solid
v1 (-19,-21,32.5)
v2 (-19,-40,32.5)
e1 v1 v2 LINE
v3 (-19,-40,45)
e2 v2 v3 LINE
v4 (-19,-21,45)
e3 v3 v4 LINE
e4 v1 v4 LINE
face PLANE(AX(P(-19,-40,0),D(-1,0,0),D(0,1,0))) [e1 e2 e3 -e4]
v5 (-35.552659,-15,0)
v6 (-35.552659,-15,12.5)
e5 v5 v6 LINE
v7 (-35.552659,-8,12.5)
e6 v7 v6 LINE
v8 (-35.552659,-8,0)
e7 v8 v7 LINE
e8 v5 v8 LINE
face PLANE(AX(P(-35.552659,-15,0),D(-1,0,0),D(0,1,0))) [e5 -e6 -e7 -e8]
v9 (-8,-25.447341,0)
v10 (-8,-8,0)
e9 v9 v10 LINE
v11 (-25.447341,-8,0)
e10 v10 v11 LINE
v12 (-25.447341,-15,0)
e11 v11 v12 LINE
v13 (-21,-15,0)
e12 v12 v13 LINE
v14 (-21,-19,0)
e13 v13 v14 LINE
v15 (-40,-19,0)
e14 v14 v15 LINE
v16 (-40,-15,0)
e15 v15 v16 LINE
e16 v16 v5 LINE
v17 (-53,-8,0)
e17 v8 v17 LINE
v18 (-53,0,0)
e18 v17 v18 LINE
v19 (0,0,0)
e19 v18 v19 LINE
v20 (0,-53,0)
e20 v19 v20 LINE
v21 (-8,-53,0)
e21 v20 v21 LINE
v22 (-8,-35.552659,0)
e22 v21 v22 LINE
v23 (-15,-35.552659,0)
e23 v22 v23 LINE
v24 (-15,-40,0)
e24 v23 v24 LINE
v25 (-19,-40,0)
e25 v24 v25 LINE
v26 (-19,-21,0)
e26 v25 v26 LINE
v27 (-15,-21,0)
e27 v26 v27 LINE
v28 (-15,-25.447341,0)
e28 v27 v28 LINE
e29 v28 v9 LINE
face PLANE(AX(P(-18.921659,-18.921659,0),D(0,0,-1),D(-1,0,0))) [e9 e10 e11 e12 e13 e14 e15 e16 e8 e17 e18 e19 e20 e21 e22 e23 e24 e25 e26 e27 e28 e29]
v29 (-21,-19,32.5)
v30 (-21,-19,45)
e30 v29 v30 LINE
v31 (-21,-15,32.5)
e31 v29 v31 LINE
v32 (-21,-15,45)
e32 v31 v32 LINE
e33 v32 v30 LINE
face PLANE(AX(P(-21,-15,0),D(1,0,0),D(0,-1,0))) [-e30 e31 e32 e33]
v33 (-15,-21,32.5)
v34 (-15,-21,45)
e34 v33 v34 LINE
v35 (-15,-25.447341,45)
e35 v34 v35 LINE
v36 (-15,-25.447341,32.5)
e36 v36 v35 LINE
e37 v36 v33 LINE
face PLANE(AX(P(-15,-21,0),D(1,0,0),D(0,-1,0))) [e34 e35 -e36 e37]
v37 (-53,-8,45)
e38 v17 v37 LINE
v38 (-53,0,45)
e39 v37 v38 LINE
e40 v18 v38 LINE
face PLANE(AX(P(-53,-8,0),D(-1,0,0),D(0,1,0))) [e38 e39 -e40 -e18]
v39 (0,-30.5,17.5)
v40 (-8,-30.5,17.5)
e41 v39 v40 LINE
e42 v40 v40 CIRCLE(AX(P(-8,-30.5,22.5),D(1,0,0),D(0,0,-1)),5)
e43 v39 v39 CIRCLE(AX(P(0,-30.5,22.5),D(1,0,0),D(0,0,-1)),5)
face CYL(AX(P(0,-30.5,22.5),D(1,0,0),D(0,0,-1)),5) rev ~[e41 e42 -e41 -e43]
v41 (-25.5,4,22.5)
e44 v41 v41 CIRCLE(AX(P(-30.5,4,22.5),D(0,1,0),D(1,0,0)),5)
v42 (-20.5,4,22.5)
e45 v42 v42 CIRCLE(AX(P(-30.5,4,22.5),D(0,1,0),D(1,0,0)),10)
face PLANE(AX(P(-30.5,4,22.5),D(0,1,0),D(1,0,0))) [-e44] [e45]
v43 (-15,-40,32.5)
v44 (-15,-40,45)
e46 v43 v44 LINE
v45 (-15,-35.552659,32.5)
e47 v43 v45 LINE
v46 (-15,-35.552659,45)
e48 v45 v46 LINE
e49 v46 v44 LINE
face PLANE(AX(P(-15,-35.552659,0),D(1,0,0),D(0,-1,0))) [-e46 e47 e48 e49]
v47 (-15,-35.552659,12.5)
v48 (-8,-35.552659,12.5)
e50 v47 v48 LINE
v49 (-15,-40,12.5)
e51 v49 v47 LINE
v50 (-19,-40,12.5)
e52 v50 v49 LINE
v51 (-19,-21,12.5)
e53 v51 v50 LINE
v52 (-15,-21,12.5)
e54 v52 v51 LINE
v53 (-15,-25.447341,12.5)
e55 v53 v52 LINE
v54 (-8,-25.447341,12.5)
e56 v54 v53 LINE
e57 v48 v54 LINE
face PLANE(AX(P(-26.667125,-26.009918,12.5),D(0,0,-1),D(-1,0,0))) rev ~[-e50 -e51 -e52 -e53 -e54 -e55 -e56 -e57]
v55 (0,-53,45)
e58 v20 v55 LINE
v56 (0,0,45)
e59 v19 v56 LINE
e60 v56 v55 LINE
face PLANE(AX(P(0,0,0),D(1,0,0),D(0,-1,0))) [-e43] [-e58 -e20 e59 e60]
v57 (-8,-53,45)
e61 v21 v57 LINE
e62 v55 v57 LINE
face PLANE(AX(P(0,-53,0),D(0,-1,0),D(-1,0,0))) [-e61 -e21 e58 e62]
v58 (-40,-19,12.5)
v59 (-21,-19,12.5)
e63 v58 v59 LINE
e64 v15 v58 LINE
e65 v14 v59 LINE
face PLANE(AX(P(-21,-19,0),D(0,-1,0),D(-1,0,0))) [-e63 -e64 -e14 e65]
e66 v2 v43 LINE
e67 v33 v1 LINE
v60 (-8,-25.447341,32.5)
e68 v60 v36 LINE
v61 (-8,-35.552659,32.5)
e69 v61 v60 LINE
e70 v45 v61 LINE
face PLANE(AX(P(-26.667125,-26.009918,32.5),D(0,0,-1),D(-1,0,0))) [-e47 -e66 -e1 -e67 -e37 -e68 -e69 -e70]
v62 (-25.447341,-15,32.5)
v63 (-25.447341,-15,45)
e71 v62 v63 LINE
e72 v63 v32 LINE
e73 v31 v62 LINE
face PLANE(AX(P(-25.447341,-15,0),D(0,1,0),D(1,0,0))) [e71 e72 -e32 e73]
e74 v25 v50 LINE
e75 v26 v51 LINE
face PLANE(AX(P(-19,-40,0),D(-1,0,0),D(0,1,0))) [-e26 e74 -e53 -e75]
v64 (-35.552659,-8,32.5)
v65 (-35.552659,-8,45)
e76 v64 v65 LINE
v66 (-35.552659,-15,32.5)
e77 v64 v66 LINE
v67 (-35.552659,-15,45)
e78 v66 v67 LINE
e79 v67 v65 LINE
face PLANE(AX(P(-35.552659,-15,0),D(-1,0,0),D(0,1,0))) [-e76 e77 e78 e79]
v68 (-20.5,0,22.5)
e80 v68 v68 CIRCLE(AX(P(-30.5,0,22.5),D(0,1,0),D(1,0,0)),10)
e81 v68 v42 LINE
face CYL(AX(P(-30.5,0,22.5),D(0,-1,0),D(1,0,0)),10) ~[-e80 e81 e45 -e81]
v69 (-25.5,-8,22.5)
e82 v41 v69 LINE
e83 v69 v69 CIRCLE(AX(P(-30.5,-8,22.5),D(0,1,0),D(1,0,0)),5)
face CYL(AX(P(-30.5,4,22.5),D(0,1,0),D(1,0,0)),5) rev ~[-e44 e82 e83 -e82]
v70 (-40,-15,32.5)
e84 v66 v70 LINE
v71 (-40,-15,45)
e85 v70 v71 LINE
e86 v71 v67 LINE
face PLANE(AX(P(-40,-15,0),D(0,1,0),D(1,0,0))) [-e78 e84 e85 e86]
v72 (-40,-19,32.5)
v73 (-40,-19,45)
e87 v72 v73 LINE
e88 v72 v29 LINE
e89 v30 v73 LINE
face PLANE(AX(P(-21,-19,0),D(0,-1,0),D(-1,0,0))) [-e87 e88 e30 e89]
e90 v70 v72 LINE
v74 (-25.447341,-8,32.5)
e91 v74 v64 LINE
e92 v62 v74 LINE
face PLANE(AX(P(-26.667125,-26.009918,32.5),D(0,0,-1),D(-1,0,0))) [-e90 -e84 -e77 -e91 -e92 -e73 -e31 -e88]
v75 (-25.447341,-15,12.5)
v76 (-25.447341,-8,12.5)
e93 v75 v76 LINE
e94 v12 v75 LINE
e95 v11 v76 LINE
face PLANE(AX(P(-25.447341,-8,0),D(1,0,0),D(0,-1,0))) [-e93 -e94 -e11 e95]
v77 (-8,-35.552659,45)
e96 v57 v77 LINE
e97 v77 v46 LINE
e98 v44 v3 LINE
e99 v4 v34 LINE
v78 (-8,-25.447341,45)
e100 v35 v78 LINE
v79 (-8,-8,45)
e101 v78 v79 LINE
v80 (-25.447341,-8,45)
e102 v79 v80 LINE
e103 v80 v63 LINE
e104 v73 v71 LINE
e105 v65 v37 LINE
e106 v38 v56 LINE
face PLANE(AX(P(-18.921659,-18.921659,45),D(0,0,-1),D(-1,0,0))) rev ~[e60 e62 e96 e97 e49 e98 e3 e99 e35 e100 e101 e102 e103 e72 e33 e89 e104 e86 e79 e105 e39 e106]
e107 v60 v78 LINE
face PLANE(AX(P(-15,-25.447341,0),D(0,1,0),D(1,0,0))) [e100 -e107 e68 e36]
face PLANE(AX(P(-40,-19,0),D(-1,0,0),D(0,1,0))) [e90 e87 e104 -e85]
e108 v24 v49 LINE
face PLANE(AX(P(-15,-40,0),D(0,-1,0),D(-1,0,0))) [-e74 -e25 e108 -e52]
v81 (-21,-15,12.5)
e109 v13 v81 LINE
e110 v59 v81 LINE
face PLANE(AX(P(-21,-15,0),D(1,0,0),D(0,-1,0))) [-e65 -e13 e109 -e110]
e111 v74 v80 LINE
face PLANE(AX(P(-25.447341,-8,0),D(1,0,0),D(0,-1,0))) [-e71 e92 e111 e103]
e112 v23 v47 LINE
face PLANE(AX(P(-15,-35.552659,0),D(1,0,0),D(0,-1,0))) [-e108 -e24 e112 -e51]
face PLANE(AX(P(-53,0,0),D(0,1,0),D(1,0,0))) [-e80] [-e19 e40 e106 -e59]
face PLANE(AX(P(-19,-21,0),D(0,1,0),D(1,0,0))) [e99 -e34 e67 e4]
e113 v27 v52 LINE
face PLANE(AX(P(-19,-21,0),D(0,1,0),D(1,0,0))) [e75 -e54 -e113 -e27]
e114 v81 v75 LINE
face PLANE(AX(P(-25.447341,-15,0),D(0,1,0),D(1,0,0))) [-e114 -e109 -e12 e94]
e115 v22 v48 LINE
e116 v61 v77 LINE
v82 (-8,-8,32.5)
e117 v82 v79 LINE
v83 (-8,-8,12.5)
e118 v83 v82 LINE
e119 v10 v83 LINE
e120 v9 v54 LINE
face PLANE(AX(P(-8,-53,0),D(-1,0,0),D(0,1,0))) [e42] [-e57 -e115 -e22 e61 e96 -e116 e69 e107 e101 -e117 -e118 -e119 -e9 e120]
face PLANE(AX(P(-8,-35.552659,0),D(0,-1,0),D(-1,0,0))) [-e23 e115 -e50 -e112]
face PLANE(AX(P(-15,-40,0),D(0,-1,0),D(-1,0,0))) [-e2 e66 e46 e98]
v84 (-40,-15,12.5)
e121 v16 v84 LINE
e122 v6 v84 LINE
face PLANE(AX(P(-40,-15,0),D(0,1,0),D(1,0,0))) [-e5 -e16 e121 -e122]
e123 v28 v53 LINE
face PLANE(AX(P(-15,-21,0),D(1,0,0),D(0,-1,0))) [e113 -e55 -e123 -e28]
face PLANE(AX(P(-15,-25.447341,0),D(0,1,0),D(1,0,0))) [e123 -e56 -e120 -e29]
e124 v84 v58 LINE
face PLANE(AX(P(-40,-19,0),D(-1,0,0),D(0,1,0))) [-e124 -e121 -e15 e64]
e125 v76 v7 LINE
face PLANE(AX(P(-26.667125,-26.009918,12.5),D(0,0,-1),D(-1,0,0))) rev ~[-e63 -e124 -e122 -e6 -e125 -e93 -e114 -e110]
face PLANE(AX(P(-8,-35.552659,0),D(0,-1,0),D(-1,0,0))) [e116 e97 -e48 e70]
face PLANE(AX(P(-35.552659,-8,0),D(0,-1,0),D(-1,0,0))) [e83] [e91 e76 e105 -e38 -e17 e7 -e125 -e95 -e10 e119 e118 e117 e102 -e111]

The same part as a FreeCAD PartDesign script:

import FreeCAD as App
import Part
import Sketcher

V = App.Vector
Q = App.Units.Quantity

doc = App.newDocument("Part")
body = doc.addObject("PartDesign::Body", "Body")

sketch1 = doc.addObject("Sketcher::SketchObject", "Sketch")
body.addObject(sketch1)
sketch1.AttachmentSupport = (doc.XY_Plane, [""])
sketch1.MapMode = "FlatFace"
sketch1.addGeometry([
    Part.LineSegment(V(0, 0, 0), V(-53, 0, 0)),
    Part.LineSegment(V(-53, 0, 0), V(-53, -8, 0)),
    Part.LineSegment(V(-53, -8, 0), V(-35.6, -8, 0)),
    Part.LineSegment(V(-35.6, -8, 0), V(-35.6, -15, 0)),
    Part.LineSegment(V(-35.6, -15, 0), V(-40, -15, 0)),
    Part.LineSegment(V(-40, -15, 0), V(-40, -19, 0)),
    Part.LineSegment(V(-40, -19, 0), V(-21, -19, 0)),
    Part.LineSegment(V(-21, -19, 0), V(-21, -15, 0)),
    Part.LineSegment(V(-21, -15, 0), V(-25.4, -15, 0)),
    Part.LineSegment(V(-25.4, -15, 0), V(-25.4, -8, 0)),
    Part.LineSegment(V(-25.4, -8, 0), V(-8, -8, 0)),
    Part.LineSegment(V(-8, -8, 0), V(-8, -25.4, 0)),
    Part.LineSegment(V(-8, -25.4, 0), V(-15, -25.4, 0)),
    Part.LineSegment(V(-15, -25.4, 0), V(-15, -21, 0)),
    Part.LineSegment(V(-15, -21, 0), V(-19, -21, 0)),
    Part.LineSegment(V(-19, -21, 0), V(-19, -40, 0)),
    Part.LineSegment(V(-19, -40, 0), V(-15, -40, 0)),
    Part.LineSegment(V(-15, -40, 0), V(-15, -35.6, 0)),
    Part.LineSegment(V(-15, -35.6, 0), V(-8, -35.6, 0)),
    Part.LineSegment(V(-8, -35.6, 0), V(-8, -53, 0)),
    Part.LineSegment(V(-8, -53, 0), V(0, -53, 0)),
    Part.LineSegment(V(0, -53, 0), V(0, 0, 0)),
], False)
sketch1.addConstraint([
    Sketcher.Constraint("Coincident", 0, 2, 1, 1),
    Sketcher.Constraint("Coincident", 1, 2, 2, 1),
    Sketcher.Constraint("Coincident", 2, 2, 3, 1),
    Sketcher.Constraint("Coincident", 3, 2, 4, 1),
    Sketcher.Constraint("Coincident", 4, 2, 5, 1),
    Sketcher.Constraint("Coincident", 5, 2, 6, 1),
    Sketcher.Constraint("Coincident", 6, 2, 7, 1),
    Sketcher.Constraint("Coincident", 7, 2, 8, 1),
    Sketcher.Constraint("Coincident", 8, 2, 9, 1),
    Sketcher.Constraint("Coincident", 9, 2, 10, 1),
    Sketcher.Constraint("Coincident", 10, 2, 11, 1),
    Sketcher.Constraint("Coincident", 11, 2, 12, 1),
    Sketcher.Constraint("Coincident", 12, 2, 13, 1),
    Sketcher.Constraint("Coincident", 13, 2, 14, 1),
    Sketcher.Constraint("Coincident", 14, 2, 15, 1),
    Sketcher.Constraint("Coincident", 15, 2, 16, 1),
    Sketcher.Constraint("Coincident", 16, 2, 17, 1),
    Sketcher.Constraint("Coincident", 17, 2, 18, 1),
    Sketcher.Constraint("Coincident", 18, 2, 19, 1),
    Sketcher.Constraint("Coincident", 19, 2, 20, 1),
    Sketcher.Constraint("Coincident", 20, 2, 21, 1),
    Sketcher.Constraint("Coincident", 21, 2, 0, 1),
    Sketcher.Constraint("Horizontal", 0),
    Sketcher.Constraint("Vertical", 1),
    Sketcher.Constraint("Horizontal", 2),
    Sketcher.Constraint("Vertical", 3),
    Sketcher.Constraint("Horizontal", 4),
    Sketcher.Constraint("Vertical", 5),
    Sketcher.Constraint("Horizontal", 6),
    Sketcher.Constraint("Vertical", 7),
    Sketcher.Constraint("Horizontal", 8),
    Sketcher.Constraint("Vertical", 9),
    Sketcher.Constraint("Horizontal", 10),
    Sketcher.Constraint("Vertical", 11),
    Sketcher.Constraint("Horizontal", 12),
    Sketcher.Constraint("Vertical", 13),
    Sketcher.Constraint("Horizontal", 14),
    Sketcher.Constraint("Vertical", 15),
    Sketcher.Constraint("Horizontal", 16),
    Sketcher.Constraint("Vertical", 17),
    Sketcher.Constraint("Horizontal", 18),
    Sketcher.Constraint("Vertical", 19),
    Sketcher.Constraint("Horizontal", 20),
    Sketcher.Constraint("Vertical", 21),
    Sketcher.Constraint("Coincident", 21, 2, -1, 1),
    Sketcher.Constraint("Horizontal", 4, 2, 7, 2),
    Sketcher.Constraint("Horizontal", 2, 2, 9, 2),
    Sketcher.Constraint("Vertical", 13, 2, 16, 2),
    Sketcher.Constraint("Vertical", 11, 2, 18, 2),
    Sketcher.Constraint("Equal", 4, 8),
    Sketcher.Constraint("Equal", 2, 10),
    Sketcher.Constraint("Equal", 20, 1),
    Sketcher.Constraint("Equal", 18, 3),
    Sketcher.Constraint("Equal", 16, 5),
    Sketcher.Constraint("Equal", 10, 11),
    Sketcher.Constraint("Equal", 8, 13),
    Sketcher.Constraint("Equal", 6, 15),
    Sketcher.Constraint("Equal", 13, 17),
    Sketcher.Constraint("Equal", 11, 19),
    Sketcher.Constraint("DistanceX", 0, 2, 0, 1, Q("53 mm")),
    Sketcher.Constraint("DistanceX", 6, 1, 6, 2, Q("19 mm")),
    Sketcher.Constraint("DistanceX", 12, 2, 12, 1, Q("7 mm")),
    Sketcher.Constraint("DistanceX", 14, 2, 14, 1, Q("4 mm")),
    Sketcher.Constraint("DistanceX", 20, 1, 20, 2, Q("8 mm")),
    Sketcher.Constraint("DistanceX", 2, 1, 2, 2, Q("17.447341 mm")),
])
pad1 = doc.addObject("PartDesign::Pad", "Pad")
body.addObject(pad1)
pad1.Profile = sketch1
pad1.Length = 45

sketch2 = doc.addObject("Sketcher::SketchObject", "Sketch001")
body.addObject(sketch2)
sketch2.AttachmentSupport = (doc.YZ_Plane, [""])
sketch2.MapMode = "FlatFace"
sketch2.addGeometry(Part.Circle(V(-30, 22, 0), V(0, 0, 1), 5), False)
sketch2.addConstraint([
    Sketcher.Constraint("Diameter", 0, Q("10 mm")),
    Sketcher.Constraint("DistanceX", 0, 3, -1, 1, Q("30.5 mm")),
    Sketcher.Constraint("DistanceY", -1, 1, 0, 3, Q("22.5 mm")),
])
pocket1 = doc.addObject("PartDesign::Pocket", "Pocket")
body.addObject(pocket1)
pocket1.Profile = sketch2
pocket1.Type = "UpToFirst"

sketch3 = doc.addObject("Sketcher::SketchObject", "Sketch002")
body.addObject(sketch3)
sketch3.AttachmentSupport = (doc.XY_Plane, [""])
sketch3.MapMode = "FlatFace"
sketch3.AttachmentOffset = App.Placement(V(0, 0, 12.5), App.Rotation())
sketch3.addGeometry([
    Part.LineSegment(V(-8, -8, 0), V(-8, -44, 0)),
    Part.LineSegment(V(-8, -44, 0), V(-45, -44, 0)),
    Part.LineSegment(V(-45, -44, 0), V(-45, -8, 0)),
    Part.LineSegment(V(-45, -8, 0), V(-8, -8, 0)),
], False)
sketch3.addConstraint([
    Sketcher.Constraint("Coincident", 0, 2, 1, 1),
    Sketcher.Constraint("Coincident", 1, 2, 2, 1),
    Sketcher.Constraint("Coincident", 2, 2, 3, 1),
    Sketcher.Constraint("Coincident", 3, 2, 0, 1),
    Sketcher.Constraint("Vertical", 0),
    Sketcher.Constraint("Horizontal", 1),
    Sketcher.Constraint("Vertical", 2),
    Sketcher.Constraint("Horizontal", 3),
    Sketcher.Constraint("DistanceX", 0, 2, -1, 1, Q("8 mm")),
    Sketcher.Constraint("DistanceY", 2, 2, -1, 1, Q("8 mm")),
    Sketcher.Constraint("DistanceX", 1, 2, 1, 1, Q("37.334251 mm")),
    Sketcher.Constraint("DistanceY", 0, 2, 0, 1, Q("36.019836 mm")),
])
pocket2 = doc.addObject("PartDesign::Pocket", "Pocket001")
body.addObject(pocket2)
pocket2.Profile = sketch3
pocket2.Length = 20
pocket2.Reversed = True

sketch4 = doc.addObject("Sketcher::SketchObject", "Sketch003")
body.addObject(sketch4)
sketch4.AttachmentSupport = (doc.XZ_Plane, [""])
sketch4.MapMode = "FlatFace"
sketch4.addGeometry(Part.Circle(V(-30, 22, 0), V(0, 0, 1), 10), False)
sketch4.addConstraint([
    Sketcher.Constraint("Diameter", 0, Q("20 mm")),
    Sketcher.Constraint("DistanceX", 0, 3, -1, 1, Q("30.5 mm")),
    Sketcher.Constraint("DistanceY", -1, 1, 0, 3, Q("22.5 mm")),
])
pad2 = doc.addObject("PartDesign::Pad", "Pad001")
body.addObject(pad2)
pad2.Profile = sketch4
pad2.Length = 4
pad2.Reversed = True

sketch5 = doc.addObject("Sketcher::SketchObject", "Sketch004")
body.addObject(sketch5)
sketch5.AttachmentSupport = (doc.XZ_Plane, [""])
sketch5.MapMode = "FlatFace"
sketch5.AttachmentOffset = App.Placement(V(0, 0, -4), App.Rotation())
sketch5.addGeometry(Part.Circle(V(-30, 22, 0), V(0, 0, 1), 5), False)
sketch5.addConstraint([
    Sketcher.Constraint("Diameter", 0, Q("10 mm")),
    Sketcher.Constraint("DistanceX", 0, 3, -1, 1, Q("30.5 mm")),
    Sketcher.Constraint("DistanceY", -1, 1, 0, 3, Q("22.5 mm")),
])
pocket3 = doc.addObject("PartDesign::Pocket", "Pocket002")
body.addObject(pocket3)
pocket3.Profile = sketch5
pocket3.Type = "UpToFirst"
pocket3.Reversed = True

doc.recompute()
